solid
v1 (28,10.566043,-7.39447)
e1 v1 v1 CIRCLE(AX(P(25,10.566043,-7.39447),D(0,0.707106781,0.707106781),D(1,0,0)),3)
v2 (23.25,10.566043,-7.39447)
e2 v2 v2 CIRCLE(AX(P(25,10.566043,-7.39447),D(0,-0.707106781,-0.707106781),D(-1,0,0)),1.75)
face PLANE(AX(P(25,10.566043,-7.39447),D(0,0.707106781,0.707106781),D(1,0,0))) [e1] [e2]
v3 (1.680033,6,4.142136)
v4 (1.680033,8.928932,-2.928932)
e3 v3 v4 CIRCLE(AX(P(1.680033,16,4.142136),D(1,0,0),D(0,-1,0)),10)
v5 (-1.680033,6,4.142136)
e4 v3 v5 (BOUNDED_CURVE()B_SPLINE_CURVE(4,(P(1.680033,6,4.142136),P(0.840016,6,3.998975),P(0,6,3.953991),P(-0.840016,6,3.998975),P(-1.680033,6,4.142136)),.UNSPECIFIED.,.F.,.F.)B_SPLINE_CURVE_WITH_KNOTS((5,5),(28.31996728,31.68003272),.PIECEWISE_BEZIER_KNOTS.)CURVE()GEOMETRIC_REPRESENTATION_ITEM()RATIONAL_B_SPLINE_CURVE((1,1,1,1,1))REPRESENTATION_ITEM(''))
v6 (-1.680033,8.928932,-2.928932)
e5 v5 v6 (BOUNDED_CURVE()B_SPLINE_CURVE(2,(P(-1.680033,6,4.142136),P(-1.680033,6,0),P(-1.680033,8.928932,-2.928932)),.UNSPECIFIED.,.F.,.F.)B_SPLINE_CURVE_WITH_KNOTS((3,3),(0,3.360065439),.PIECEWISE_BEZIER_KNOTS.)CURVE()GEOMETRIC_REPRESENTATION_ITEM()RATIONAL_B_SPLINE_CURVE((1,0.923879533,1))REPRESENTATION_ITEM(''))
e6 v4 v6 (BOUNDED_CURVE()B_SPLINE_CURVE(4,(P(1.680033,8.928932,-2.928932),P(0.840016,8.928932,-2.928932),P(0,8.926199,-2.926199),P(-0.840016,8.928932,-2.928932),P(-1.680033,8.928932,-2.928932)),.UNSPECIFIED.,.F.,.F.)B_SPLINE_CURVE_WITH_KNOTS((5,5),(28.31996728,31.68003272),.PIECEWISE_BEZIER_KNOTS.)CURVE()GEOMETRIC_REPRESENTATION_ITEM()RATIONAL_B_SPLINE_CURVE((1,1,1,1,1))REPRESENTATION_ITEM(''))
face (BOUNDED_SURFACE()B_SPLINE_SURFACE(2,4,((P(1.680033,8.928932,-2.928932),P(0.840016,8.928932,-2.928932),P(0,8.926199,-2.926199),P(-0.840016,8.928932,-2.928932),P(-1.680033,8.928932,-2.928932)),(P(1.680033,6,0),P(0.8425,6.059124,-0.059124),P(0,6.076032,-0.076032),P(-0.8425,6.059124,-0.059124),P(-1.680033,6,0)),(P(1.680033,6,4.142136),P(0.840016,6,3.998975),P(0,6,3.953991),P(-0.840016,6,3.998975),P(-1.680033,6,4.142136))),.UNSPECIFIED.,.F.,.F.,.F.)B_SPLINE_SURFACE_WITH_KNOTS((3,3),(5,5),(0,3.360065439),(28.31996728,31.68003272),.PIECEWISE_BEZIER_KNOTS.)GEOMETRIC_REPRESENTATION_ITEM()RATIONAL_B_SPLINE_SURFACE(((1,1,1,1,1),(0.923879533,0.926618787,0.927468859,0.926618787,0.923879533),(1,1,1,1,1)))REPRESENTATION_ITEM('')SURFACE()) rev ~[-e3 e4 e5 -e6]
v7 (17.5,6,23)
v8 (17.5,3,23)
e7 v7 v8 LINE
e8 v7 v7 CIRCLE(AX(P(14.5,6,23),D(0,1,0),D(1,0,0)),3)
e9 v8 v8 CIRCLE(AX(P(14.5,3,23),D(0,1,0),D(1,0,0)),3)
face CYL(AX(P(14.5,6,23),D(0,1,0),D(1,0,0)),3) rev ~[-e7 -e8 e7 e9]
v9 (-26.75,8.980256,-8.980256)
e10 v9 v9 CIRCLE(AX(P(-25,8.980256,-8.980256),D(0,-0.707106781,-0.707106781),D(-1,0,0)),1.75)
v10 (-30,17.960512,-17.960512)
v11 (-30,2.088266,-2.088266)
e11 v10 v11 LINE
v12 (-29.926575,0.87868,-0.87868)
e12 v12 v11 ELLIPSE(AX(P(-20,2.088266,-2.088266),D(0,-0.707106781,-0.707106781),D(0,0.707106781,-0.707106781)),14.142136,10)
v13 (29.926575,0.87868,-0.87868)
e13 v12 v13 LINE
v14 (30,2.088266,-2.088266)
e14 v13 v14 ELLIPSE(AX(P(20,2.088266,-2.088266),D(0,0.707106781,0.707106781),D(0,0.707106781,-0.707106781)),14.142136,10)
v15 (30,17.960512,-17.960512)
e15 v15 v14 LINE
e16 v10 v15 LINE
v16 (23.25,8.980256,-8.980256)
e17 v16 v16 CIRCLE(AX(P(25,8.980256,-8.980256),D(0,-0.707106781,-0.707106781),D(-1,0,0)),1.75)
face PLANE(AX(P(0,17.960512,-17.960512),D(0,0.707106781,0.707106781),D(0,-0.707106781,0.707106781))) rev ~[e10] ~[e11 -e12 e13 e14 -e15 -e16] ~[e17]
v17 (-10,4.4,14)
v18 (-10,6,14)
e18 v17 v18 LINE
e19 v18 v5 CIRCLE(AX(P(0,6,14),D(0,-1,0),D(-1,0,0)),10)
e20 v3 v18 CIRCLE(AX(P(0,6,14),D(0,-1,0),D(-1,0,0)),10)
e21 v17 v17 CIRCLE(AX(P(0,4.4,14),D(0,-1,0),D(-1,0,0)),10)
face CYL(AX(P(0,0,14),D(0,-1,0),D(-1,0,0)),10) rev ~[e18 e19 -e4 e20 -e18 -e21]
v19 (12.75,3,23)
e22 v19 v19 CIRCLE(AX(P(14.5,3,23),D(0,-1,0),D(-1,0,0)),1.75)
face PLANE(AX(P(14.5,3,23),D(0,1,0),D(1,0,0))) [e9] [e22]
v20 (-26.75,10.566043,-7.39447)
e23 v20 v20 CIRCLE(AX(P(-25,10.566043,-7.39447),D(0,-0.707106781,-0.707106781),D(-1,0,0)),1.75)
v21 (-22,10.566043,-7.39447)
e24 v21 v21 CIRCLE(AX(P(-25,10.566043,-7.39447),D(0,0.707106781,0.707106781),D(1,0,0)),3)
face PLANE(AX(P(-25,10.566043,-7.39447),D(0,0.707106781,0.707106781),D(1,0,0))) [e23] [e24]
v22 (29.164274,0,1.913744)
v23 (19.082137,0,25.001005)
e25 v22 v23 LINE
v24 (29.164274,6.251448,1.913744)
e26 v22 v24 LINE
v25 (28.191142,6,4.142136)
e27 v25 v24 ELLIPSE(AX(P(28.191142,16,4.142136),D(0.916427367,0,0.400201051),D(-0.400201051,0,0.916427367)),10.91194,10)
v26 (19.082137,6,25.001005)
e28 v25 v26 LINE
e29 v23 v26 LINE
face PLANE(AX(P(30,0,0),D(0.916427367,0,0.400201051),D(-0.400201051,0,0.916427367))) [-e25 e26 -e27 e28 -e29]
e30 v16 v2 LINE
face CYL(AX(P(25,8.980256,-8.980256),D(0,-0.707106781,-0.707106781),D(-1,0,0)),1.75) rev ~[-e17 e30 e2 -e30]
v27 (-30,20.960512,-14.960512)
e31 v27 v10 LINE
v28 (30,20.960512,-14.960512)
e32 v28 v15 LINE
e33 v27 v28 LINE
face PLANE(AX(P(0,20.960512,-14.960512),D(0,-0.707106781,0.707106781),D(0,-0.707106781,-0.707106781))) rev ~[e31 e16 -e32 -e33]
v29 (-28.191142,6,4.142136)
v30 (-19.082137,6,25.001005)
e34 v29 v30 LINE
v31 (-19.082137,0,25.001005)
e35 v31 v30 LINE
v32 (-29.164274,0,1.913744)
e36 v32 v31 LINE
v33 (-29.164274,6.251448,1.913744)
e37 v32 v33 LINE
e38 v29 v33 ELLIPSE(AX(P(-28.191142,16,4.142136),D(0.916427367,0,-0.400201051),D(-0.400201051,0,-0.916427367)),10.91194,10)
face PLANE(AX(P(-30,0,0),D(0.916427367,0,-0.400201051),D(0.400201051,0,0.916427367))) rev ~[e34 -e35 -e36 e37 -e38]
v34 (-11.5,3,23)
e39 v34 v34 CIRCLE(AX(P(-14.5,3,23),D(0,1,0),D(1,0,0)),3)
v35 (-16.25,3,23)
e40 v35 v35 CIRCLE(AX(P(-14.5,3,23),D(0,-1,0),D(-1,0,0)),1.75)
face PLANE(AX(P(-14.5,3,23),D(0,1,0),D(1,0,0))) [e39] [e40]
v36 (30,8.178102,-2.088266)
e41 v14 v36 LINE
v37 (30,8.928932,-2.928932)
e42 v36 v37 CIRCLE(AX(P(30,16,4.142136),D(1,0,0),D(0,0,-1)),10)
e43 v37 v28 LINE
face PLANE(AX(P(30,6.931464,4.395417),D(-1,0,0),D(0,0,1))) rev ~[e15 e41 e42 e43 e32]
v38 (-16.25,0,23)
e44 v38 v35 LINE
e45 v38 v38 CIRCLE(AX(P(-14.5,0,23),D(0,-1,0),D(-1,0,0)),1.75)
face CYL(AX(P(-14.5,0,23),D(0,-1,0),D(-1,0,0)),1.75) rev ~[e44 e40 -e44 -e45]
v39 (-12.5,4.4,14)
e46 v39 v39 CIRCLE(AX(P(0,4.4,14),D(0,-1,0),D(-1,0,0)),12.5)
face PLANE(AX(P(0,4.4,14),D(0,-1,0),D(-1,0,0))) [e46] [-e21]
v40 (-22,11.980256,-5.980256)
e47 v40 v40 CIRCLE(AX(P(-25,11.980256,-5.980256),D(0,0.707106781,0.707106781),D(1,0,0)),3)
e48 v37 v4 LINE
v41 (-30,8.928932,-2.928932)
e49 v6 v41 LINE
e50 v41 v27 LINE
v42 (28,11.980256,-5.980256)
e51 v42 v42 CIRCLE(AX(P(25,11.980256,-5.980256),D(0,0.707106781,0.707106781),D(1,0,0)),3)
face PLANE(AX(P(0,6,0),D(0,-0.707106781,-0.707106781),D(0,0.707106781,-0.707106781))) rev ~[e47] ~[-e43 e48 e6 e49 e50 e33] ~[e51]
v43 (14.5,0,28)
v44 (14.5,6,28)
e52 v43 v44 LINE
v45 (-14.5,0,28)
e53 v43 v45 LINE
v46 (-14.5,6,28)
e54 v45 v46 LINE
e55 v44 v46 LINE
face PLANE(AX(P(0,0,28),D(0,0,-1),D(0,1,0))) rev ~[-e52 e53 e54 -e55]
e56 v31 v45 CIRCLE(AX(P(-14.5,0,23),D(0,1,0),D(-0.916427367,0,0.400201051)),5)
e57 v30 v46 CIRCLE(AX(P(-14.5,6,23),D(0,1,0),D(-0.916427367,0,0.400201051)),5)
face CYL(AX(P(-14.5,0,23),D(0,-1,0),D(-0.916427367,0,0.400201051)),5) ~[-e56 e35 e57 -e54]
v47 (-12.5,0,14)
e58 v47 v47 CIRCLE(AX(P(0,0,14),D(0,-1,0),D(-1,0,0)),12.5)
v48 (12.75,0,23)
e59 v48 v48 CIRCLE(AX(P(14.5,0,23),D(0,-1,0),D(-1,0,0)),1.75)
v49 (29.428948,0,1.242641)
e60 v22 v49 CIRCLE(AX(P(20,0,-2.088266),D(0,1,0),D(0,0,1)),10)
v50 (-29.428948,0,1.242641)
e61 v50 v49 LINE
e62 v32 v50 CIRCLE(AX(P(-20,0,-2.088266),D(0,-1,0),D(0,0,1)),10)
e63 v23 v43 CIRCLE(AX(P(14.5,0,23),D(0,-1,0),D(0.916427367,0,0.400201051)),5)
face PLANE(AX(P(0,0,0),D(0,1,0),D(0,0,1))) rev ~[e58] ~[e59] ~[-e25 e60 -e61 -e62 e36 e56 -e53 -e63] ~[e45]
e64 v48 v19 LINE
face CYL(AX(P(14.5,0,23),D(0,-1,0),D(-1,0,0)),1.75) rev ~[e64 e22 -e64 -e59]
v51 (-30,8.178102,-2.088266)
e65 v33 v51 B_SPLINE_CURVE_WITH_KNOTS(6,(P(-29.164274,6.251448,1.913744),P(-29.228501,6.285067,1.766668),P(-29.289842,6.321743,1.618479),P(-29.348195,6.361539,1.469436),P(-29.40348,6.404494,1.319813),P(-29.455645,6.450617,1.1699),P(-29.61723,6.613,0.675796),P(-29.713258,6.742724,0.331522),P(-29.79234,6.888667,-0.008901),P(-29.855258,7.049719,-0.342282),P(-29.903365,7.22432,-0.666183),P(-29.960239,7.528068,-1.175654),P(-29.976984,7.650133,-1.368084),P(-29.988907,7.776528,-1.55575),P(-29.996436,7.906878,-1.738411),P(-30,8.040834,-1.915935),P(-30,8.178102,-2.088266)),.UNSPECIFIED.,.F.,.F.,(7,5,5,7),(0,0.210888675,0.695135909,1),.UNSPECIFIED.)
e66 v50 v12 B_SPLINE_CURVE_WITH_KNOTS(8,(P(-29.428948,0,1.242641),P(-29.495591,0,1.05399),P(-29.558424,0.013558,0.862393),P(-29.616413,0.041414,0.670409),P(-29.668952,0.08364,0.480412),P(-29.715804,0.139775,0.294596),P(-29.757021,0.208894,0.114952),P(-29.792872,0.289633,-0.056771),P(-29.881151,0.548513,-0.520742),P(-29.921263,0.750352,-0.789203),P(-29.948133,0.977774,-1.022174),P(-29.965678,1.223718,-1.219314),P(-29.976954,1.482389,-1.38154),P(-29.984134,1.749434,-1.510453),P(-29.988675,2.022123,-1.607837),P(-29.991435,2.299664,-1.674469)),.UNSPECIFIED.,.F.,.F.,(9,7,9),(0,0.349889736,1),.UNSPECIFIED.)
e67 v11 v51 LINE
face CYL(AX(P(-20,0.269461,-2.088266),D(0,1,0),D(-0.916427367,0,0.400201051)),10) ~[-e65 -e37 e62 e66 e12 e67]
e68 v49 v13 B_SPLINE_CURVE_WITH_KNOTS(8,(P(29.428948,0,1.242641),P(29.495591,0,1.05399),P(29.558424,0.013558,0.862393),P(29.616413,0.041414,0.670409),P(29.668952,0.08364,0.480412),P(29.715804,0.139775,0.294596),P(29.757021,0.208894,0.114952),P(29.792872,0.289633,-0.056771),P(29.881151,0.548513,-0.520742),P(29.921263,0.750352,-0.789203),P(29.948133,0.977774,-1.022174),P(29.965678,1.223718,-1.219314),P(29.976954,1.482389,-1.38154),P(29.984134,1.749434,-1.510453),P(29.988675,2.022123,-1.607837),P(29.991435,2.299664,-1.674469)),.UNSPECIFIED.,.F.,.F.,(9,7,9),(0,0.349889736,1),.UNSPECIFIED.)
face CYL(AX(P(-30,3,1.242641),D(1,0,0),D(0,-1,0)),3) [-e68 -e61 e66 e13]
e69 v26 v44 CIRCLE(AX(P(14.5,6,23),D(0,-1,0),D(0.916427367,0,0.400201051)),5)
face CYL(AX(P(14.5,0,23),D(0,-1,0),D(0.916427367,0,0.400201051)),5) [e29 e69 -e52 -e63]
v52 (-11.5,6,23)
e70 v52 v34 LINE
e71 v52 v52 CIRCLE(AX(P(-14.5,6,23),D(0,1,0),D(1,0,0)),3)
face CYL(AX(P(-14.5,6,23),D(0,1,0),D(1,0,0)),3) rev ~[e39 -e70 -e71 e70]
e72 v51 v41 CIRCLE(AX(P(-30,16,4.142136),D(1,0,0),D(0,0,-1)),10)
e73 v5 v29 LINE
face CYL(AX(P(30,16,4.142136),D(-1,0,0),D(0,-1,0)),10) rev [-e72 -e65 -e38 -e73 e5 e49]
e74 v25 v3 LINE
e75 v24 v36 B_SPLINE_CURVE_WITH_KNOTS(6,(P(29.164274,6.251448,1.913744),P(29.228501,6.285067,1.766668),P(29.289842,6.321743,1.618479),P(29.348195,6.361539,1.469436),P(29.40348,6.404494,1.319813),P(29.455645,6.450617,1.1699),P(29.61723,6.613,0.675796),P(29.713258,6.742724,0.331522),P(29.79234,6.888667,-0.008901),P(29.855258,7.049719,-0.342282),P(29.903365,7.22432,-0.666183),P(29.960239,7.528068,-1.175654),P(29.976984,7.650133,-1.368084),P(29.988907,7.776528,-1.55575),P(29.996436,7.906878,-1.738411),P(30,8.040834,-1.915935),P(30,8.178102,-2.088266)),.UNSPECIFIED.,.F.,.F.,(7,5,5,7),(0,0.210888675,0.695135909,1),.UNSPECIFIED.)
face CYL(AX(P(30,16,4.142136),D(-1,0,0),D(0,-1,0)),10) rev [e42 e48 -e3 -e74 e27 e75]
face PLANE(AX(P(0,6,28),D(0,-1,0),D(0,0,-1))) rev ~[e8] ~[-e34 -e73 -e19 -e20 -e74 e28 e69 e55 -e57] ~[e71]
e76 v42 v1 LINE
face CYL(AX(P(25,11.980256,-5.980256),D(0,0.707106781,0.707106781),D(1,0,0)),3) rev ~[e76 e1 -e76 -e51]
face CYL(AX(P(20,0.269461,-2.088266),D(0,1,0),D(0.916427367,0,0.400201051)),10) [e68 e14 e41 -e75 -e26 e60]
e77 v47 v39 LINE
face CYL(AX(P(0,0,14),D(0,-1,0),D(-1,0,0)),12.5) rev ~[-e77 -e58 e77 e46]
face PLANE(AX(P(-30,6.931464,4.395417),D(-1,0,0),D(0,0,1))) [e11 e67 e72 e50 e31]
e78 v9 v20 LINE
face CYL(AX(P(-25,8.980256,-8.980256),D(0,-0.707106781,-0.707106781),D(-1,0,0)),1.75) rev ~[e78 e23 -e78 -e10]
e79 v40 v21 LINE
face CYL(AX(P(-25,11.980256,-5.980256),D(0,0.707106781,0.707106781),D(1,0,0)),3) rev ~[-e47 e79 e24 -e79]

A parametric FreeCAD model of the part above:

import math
import FreeCAD as App
import Part
import Sketcher
Q = App.Units.Quantity


def edges_at(feature, points):
    """Names of the edges that pass closest to the given points."""
    edges = feature.Shape.Edges
    near = lambda p: min(range(len(edges)), key=lambda i: edges[i].distToShape(Part.Vertex(*p))[0])
    return sorted({f"Edge{near(p) + 1}" for p in points})


def add_polygon(sketch, points):
    """Adds a closed chain of lines whose ends are joined by coincident constraints."""
    first, n = sketch.GeometryCount, len(points)
    for a, b in zip(points, points[1:] + points[:1]):
        sketch.addGeometry(Part.LineSegment(App.Vector(*a, 0), App.Vector(*b, 0)), False)
    for i in range(n):
        sketch.addConstraint(Sketcher.Constraint("Coincident", first + i, 2, first + (i + 1) % n, 1))

doc = App.newDocument("Part")
body = doc.addObject("PartDesign::Body", "Body")

# Sketch on YZ plane
sketch1 = body.newObject("Sketcher::SketchObject", "Sketch")
sketch1.AttachmentSupport = (doc.getObject("YZ_Plane"), [""])
sketch1.MapMode = "FlatFace"
add_polygon(sketch1, [(0, 28), (0, 0), (17.960512, -17.960512), (20.960512, -14.960512), (6, 0), (6, 28)])  # lines 0-5
sketch1.addConstraint(Sketcher.Constraint("Vertical", 0))
sketch1.addConstraint(Sketcher.Constraint("Vertical", 4))
sketch1.addConstraint(Sketcher.Constraint("Horizontal", 5))
sketch1.addConstraint(Sketcher.Constraint("Coincident", 0, 2, -1, 1))
sketch1.addConstraint(Sketcher.Constraint("PointOnObject", 3, 2, -1))
sketch1.addConstraint(Sketcher.Constraint("Perpendicular", 1, 2))
sketch1.addConstraint(Sketcher.Constraint("Perpendicular", 2, 3))
sketch1.addConstraint(Sketcher.Constraint("DistanceX", 5, 2, 5, 1, Q("6 mm")))
sketch1.addConstraint(Sketcher.Constraint("DistanceY", 0, 2, 0, 1, Q("28 mm")))
sketch1.addConstraint(Sketcher.Constraint("Angle", 1, Q("-45 deg")))
sketch1.addConstraint(Sketcher.Constraint("Distance", 1, Q("25.4 mm")))
pad1 = body.newObject("PartDesign::Pad", "Pad")
pad1.Profile = sketch1
pad1.Type = "TwoLengths"
pad1.Length = 30
pad1.Length2 = 30

# Sketch on an angled plane
sketch2 = body.newObject("Sketcher::SketchObject", "Sketch001")
sketch2.Placement = App.Placement(App.Vector(0, 0, 0), App.Rotation(App.Vector(-1, 0, 0), App.Vector(0, 0.707106781, -0.707106781), App.Vector(0, -0.707106781, -0.707106781), "ZXY"))
sketch2.addGeometry(Part.Circle(App.Vector(-25, 12.7, 0), App.Vector(0, 0, 1), 1.75), False)
sketch2.addGeometry(Part.Circle(App.Vector(25, 12.7, 0), App.Vector(0, 0, 1), 1.75), False)
sketch2.addConstraint(Sketcher.Constraint("Equal", 0, 1))
sketch2.addConstraint(Sketcher.Constraint("Symmetric", 0, 3, 1, 3, -2))
sketch2.addConstraint(Sketcher.Constraint("Diameter", 0, Q("3.5 mm")))
sketch2.addConstraint(Sketcher.Constraint("DistanceX", 0, 3, -1, 1, Q("25 mm")))
sketch2.addConstraint(Sketcher.Constraint("DistanceY", -1, 1, 0, 3, Q("12.7 mm")))
pocket1 = body.newObject("PartDesign::Pocket", "Pocket")
pocket1.Profile = sketch2
pocket1.Length = 4.242641

# Sketch on an angled plane
sketch3 = body.newObject("Sketcher::SketchObject", "Sketch002")
sketch3.Placement = App.Placement(App.Vector(0, 3, 3), App.Rotation(App.Vector(1, 0, 0), App.Vector(0, 0.707106781, -0.707106781), App.Vector(0, 0.707106781, 0.707106781), "ZXY"))
sketch3.addGeometry(Part.Circle(App.Vector(-25, 12.7, 0), App.Vector(0, 0, 1), 3), False)
sketch3.addGeometry(Part.Circle(App.Vector(25, 12.7, 0), App.Vector(0, 0, 1), 3), False)
sketch3.addConstraint(Sketcher.Constraint("Equal", 0, 1))
sketch3.addConstraint(Sketcher.Constraint("Symmetric", 0, 3, 1, 3, -2))
sketch3.addConstraint(Sketcher.Constraint("Diameter", 0, Q("6 mm")))
sketch3.addConstraint(Sketcher.Constraint("DistanceX", 0, 3, -1, 1, Q("25 mm")))
sketch3.addConstraint(Sketcher.Constraint("DistanceY", -1, 1, 0, 3, Q("12.7 mm")))
pocket2 = body.newObject("PartDesign::Pocket", "Pocket001")
pocket2.Profile = sketch3
pocket2.Length = 2

# Sketch on XZ plane
sketch4 = body.newObject("Sketcher::SketchObject", "Sketch003")
sketch4.AttachmentSupport = (doc.getObject("XZ_Plane"), [""])
sketch4.MapMode = "FlatFace"
sketch4.addGeometry(Part.Circle(App.Vector(0, 14, 0), App.Vector(0, 0, 1), 10), False)
sketch4.addGeometry(Part.Circle(App.Vector(-14.5, 23, 0), App.Vector(0, 0, 1), 1.75), False)
sketch4.addGeometry(Part.Circle(App.Vector(14.5, 23, 0), App.Vector(0, 0, 1), 1.75), False)
sketch4.addGeometry(Part.ArcOfCircle(Part.Circle(App.Vector(14.5, 23, 0), App.Vector(0, 0, 1), 5), math.radians(23.590748), math.radians(90)), False)
sketch4.addGeometry(Part.LineSegment(App.Vector(19.082137, 25.001005, 0), App.Vector(30, 0, 0)), False)
sketch4.addGeometry(Part.LineSegment(App.Vector(30, 0, 0), App.Vector(30, 28, 0)), False)
sketch4.addGeometry(Part.LineSegment(App.Vector(30, 28, 0), App.Vector(14.5, 28, 0)), False)
sketch4.addGeometry(Part.LineSegment(App.Vector(-30, 0, 0), App.Vector(-19.082137, 25.001005, 0)), False)
sketch4.addGeometry(Part.ArcOfCircle(Part.Circle(App.Vector(-14.5, 23, 0), App.Vector(0, 0, 1), 5), math.radians(90), math.radians(156.409252)), False)
sketch4.addGeometry(Part.LineSegment(App.Vector(-14.5, 28, 0), App.Vector(-30, 28, 0)), False)
sketch4.addGeometry(Part.LineSegment(App.Vector(-30, 28, 0), App.Vector(-30, 0, 0)), False)
sketch4.addConstraint(Sketcher.Constraint("Tangent", 3, 1, 4, 1))
sketch4.addConstraint(Sketcher.Constraint("Coincident", 4, 2, 5, 1))
sketch4.addConstraint(Sketcher.Constraint("Coincident", 5, 2, 6, 1))
sketch4.addConstraint(Sketcher.Constraint("Tangent", 6, 2, 3, 2))
sketch4.addConstraint(Sketcher.Constraint("Tangent", 7, 2, 8, 2))
sketch4.addConstraint(Sketcher.Constraint("Tangent", 8, 1, 9, 1))
sketch4.addConstraint(Sketcher.Constraint("Coincident", 9, 2, 10, 1))
sketch4.addConstraint(Sketcher.Constraint("Coincident", 10, 2, 7, 1))
sketch4.addConstraint(Sketcher.Constraint("Vertical", 5))
sketch4.addConstraint(Sketcher.Constraint("Horizontal", 6))
sketch4.addConstraint(Sketcher.Constraint("Horizontal", 9))
sketch4.addConstraint(Sketcher.Constraint("Vertical", 10))
sketch4.addConstraint(Sketcher.Constraint("Coincident", 3, 3, 2, 3))
sketch4.addConstraint(Sketcher.Constraint("Coincident", 8, 3, 1, 3))
sketch4.addConstraint(Sketcher.Constraint("Equal", 1, 2))
sketch4.addConstraint(Sketcher.Constraint("Equal", 3, 8))
sketch4.addConstraint(Sketcher.Constraint("Symmetric", 4, 2, 10, 2, -1, 1))
sketch4.addConstraint(Sketcher.Constraint("Symmetric", 1, 3, 2, 3, -2))
sketch4.addConstraint(Sketcher.Constraint("PointOnObject", 0, 3, -2))
sketch4.addConstraint(Sketcher.Constraint("PointOnObject", 4, 2, -1))
sketch4.addConstraint(Sketcher.Constraint("Diameter", 0, Q("20 mm")))
sketch4.addConstraint(Sketcher.Constraint("Radius", 3, Q("5 mm")))
sketch4.addConstraint(Sketcher.Constraint("Diameter", 1, Q("3.5 mm")))
sketch4.addConstraint(Sketcher.Constraint("DistanceY", 5, 1, 5, 2, Q("28 mm")))
sketch4.addConstraint(Sketcher.Constraint("DistanceX", 6, 2, 6, 1, Q("15.5 mm")))
sketch4.addConstraint(Sketcher.Constraint("DistanceY", -1, 1, 0, 3, Q("14 mm")))
sketch4.addConstraint(Sketcher.Constraint("DistanceX", -1, 1, 4, 2, Q("30 mm")))
pocket3 = body.newObject("PartDesign::Pocket", "Pocket002")
pocket3.Profile = sketch4
pocket3.Length = 6

# Sketch on XZ plane
sketch5 = body.newObject("Sketcher::SketchObject", "Sketch004")
sketch5.AttachmentSupport = (doc.getObject("XZ_Plane"), [""])
sketch5.MapMode = "FlatFace"
sketch5.addGeometry(Part.Circle(App.Vector(0, 14, 0), App.Vector(0, 0, 1), 12.5), False)
sketch5.addGeometry(Part.Circle(App.Vector(0, 14, 0), App.Vector(0, 0, 1), 10), False)
sketch5.addConstraint(Sketcher.Constraint("Coincident", 1, 3, 0, 3))
sketch5.addConstraint(Sketcher.Constraint("PointOnObject", 0, 3, -2))
sketch5.addConstraint(Sketcher.Constraint("Diameter", 0, Q("25 mm")))
sketch5.addConstraint(Sketcher.Constraint("Diameter", 1, Q("20 mm")))
sketch5.addConstraint(Sketcher.Constraint("DistanceY", -1, 1, 0, 3, Q("14 mm")))
pocket4 = body.newObject("PartDesign::Pocket", "Pocket003")
pocket4.Profile = sketch5
pocket4.Length = 4.4
doc.recompute()

fillet = body.newObject("PartDesign::Fillet", "Fillet")
fillet.Base = (pocket4, edges_at(pocket4, [(0, 6, 0)]))
fillet.Radius = 10
doc.recompute()

fillet2 = body.newObject("PartDesign::Fillet", "Fillet001")
fillet2.Base = (fillet, edges_at(fillet, [(0, 0, 0)]))
fillet2.Radius = 3
doc.recompute()

fillet3 = body.newObject("PartDesign::Fillet", "Fillet002")
fillet3.Base = (fillet2, edges_at(fillet2, [(-30, 3.584, 0), (30, 3.584, 0)]))
fillet3.Radius = 10

# Sketch on XZ plane
sketch6 = body.newObject("Sketcher::SketchObject", "Sketch005")
sketch6.AttachmentSupport = (doc.getObject("XZ_Plane"), [""])
sketch6.MapMode = "FlatFace"
sketch6.AttachmentOffset = App.Placement(App.Vector(0, 0, -6), App.Rotation())
sketch6.addGeometry(Part.Circle(App.Vector(14.5, 23, 0), App.Vector(0, 0, 1), 3), False)
sketch6.addGeometry(Part.Circle(App.Vector(-14.5, 23, 0), App.Vector(0, 0, 1), 3), False)
sketch6.addConstraint(Sketcher.Constraint("Equal", 0, 1))
sketch6.addConstraint(Sketcher.Constraint("Symmetric", 0, 3, 1, 3, -2))
sketch6.addConstraint(Sketcher.Constraint("Diameter", 0, Q("6 mm")))
sketch6.addConstraint(Sketcher.Constraint("DistanceY", -1, 1, 0, 3, Q("23 mm")))
sketch6.addConstraint(Sketcher.Constraint("DistanceX", 1, 3, 0, 3, Q("29 mm")))
pocket5 = body.newObject("PartDesign::Pocket", "Pocket004")
pocket5.Profile = sketch6
pocket5.Length = 3
pocket5.Reversed = True

doc.recompute()
